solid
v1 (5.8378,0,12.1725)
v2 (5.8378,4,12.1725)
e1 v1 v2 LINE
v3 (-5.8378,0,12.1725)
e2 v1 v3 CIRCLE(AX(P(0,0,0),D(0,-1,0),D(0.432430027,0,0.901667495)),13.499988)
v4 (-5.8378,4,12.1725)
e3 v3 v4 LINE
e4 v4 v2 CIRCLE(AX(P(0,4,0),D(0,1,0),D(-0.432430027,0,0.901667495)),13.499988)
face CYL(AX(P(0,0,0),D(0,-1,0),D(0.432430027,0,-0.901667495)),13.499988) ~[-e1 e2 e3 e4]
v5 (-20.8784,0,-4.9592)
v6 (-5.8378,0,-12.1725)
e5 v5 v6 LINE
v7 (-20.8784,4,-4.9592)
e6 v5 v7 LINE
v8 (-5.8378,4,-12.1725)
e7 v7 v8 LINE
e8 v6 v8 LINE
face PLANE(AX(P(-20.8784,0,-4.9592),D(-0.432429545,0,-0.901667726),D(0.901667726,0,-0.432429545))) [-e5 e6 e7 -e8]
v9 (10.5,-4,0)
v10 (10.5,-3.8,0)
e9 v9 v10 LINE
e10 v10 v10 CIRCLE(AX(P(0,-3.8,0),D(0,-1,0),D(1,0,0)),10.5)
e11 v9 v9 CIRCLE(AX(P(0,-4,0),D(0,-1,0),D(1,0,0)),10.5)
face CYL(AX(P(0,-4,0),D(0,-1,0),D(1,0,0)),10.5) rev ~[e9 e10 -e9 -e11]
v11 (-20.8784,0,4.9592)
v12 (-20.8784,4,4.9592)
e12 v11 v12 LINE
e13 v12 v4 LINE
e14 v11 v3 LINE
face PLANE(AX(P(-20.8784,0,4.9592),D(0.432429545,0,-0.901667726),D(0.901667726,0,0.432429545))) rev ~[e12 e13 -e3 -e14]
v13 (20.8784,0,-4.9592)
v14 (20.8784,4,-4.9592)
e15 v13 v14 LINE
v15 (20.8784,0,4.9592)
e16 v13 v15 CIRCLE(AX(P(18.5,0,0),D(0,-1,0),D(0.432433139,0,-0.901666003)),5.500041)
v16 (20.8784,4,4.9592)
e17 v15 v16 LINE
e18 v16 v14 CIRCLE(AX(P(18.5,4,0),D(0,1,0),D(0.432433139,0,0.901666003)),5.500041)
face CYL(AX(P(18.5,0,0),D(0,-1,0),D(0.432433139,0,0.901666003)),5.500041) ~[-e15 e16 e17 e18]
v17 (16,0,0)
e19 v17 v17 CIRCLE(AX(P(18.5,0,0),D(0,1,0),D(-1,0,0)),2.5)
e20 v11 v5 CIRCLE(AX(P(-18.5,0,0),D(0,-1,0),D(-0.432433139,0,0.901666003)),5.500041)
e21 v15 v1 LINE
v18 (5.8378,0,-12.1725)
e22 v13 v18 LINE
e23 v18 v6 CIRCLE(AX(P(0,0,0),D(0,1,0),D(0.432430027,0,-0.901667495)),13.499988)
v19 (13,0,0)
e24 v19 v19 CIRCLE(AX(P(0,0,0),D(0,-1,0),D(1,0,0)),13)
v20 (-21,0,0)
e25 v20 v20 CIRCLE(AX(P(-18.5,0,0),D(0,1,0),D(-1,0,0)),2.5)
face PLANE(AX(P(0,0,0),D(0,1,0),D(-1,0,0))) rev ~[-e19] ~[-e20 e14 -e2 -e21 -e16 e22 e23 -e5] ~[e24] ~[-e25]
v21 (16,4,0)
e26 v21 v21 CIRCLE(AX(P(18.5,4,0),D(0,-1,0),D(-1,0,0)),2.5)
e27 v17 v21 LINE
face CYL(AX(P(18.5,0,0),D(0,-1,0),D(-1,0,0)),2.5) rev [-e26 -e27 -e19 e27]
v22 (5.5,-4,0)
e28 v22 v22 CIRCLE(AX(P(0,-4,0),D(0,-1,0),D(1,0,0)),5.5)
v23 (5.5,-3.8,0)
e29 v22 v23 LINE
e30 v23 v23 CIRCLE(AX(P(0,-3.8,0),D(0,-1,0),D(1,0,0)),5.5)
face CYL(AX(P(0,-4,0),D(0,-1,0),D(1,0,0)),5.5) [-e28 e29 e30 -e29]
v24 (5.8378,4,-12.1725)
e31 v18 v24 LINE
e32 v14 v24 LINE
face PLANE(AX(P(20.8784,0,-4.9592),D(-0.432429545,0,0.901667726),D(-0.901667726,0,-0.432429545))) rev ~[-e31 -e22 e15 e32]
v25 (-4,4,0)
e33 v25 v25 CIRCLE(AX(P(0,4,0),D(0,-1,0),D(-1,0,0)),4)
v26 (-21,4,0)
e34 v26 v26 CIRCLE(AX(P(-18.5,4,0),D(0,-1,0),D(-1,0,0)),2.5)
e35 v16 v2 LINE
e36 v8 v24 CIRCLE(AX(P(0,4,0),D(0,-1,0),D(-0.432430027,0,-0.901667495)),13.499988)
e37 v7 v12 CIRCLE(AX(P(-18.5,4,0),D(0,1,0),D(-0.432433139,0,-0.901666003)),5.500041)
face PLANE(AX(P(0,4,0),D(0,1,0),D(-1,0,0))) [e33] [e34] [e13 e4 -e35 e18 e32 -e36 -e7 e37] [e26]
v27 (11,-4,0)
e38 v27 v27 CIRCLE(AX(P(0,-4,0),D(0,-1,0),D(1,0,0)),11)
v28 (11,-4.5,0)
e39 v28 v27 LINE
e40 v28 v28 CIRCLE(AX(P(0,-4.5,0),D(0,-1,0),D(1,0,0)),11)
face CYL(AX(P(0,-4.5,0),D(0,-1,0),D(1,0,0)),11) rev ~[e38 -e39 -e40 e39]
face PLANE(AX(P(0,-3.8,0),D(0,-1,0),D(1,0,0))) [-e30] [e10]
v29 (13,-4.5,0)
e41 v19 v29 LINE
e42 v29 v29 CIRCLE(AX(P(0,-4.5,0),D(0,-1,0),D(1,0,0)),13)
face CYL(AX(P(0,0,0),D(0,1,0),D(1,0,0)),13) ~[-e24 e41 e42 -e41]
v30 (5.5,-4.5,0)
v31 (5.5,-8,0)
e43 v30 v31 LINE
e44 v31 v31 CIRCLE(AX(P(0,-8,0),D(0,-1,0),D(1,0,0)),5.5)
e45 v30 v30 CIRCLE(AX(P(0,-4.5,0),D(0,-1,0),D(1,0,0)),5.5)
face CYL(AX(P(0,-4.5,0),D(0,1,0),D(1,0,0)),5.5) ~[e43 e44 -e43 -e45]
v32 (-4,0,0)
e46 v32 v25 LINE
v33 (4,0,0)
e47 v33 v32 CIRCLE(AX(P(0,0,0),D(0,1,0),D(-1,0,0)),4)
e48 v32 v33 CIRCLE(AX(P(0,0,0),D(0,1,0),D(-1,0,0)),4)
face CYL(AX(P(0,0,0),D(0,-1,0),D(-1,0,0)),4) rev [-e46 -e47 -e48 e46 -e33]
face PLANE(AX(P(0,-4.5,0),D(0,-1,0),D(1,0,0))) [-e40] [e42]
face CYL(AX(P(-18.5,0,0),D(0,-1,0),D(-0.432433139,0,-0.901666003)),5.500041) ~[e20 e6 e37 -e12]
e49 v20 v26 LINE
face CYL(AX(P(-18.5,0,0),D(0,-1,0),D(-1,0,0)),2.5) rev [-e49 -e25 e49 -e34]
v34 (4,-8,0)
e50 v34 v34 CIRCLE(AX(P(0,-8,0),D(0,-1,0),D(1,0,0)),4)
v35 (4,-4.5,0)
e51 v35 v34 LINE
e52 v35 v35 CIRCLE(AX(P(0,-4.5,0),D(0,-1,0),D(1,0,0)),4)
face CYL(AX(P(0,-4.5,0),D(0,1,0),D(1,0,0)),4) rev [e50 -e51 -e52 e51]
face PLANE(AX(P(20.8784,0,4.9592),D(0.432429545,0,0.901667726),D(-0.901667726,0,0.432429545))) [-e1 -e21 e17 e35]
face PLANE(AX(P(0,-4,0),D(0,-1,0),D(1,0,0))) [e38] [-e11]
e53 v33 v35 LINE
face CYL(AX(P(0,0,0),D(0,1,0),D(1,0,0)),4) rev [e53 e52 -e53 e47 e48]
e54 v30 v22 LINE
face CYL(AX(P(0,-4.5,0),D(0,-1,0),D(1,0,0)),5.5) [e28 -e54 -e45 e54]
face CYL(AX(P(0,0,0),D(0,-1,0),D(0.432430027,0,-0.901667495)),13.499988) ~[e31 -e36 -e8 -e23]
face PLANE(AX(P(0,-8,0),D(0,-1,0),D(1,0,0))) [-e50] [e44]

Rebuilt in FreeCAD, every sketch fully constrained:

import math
import FreeCAD as App
import Part
import Sketcher

V = App.Vector

doc = App.newDocument("Part")
params = doc.addObject("Spreadsheet::Sheet", "Params")
for row, (alias, value) in enumerate([
    ("sketch1_diameter", "8 mm"),
    ("sketch1_diameter2", "5 mm"),
    ("sketch1_radius", "13.5 mm"),
    ("sketch1_radius2", "5.5 mm"),
    ("pad1_length", "4 mm"),
    ("sketch2_diameter", "26 mm"),
    ("sketch2_diameter2", "8 mm"),
    ("pad2_length", "4.5 mm"),
    ("sketch3_diameter", "11 mm"),
    ("sketch3_diameter2", "8 mm"),
    ("pad3_length", "3.5 mm"),
    ("sketch4_diameter", "22 mm"),
    ("sketch4_diameter2", "11 mm"),
    ("pocket1_length", "0.5 mm"),
    ("sketch5_diameter", "21 mm"),
    ("sketch5_diameter2", "11 mm"),
    ("pocket2_length", "0.2 mm"),
], start=1):
    params.set(f"A{row}", alias)
    params.set(f"B{row}", "=" + value)
    params.setAlias(f"B{row}", alias)

body = doc.addObject("PartDesign::Body", "Body")

# Sketch on XZ plane
sketch1 = doc.addObject("Sketcher::SketchObject", "Sketch")
body.addObject(sketch1)
sketch1.AttachmentSupport = (doc.XZ_Plane, [""])
sketch1.MapMode = "FlatFace"
sketch1.addGeometry(Part.LineSegment(V(-5.8378, -12.1725, 0), V(-20.8784, -4.9592, 0)), False)
sketch1.addGeometry(Part.ArcOfCircle(Part.Circle(V(-18.5, 0, 0), V(0, 0, 1), 5.500041), math.radians(115.622073), math.radians(244.377927)), False)
sketch1.addGeometry(Part.LineSegment(V(-20.8784, 4.9592, 0), V(-5.8378, 12.1725, 0)), False)
sketch1.addGeometry(Part.ArcOfCircle(Part.Circle(V(0, 0, 0), V(0, 0, 1), 13.499988), math.radians(64.378125), math.radians(115.621875)), False)
sketch1.addGeometry(Part.LineSegment(V(5.8378, 12.1725, 0), V(20.8784, 4.9592, 0)), False)
sketch1.addGeometry(Part.ArcOfCircle(Part.Circle(V(18.5, 0, 0), V(0, 0, 1), 5.500041), math.radians(-64.377927), math.radians(64.377927)), False)
sketch1.addGeometry(Part.LineSegment(V(20.8784, -4.9592, 0), V(5.8378, -12.1725, 0)), False)
sketch1.addGeometry(Part.ArcOfCircle(Part.Circle(V(0, 0, 0), V(0, 0, 1), 13.499988), math.radians(-115.621875), math.radians(-64.378125)), False)
sketch1.addGeometry(Part.Circle(V(0, 0, 0), V(0, 0, 1), 4), False)
sketch1.addGeometry(Part.Circle(V(-18.5, 0, 0), V(0, 0, 1), 2.5), False)
sketch1.addGeometry(Part.Circle(V(18.5, 0, 0), V(0, 0, 1), 2.5), False)
sketch1.addConstraint(Sketcher.Constraint("Tangent", 0, 2, 1, 2))
sketch1.addConstraint(Sketcher.Constraint("Tangent", 1, 1, 2, 1))
sketch1.addConstraint(Sketcher.Constraint("Tangent", 2, 2, 3, 2))
sketch1.addConstraint(Sketcher.Constraint("Tangent", 3, 1, 4, 1))
sketch1.addConstraint(Sketcher.Constraint("Tangent", 4, 2, 5, 2))
sketch1.addConstraint(Sketcher.Constraint("Tangent", 5, 1, 6, 1))
sketch1.addConstraint(Sketcher.Constraint("Tangent", 6, 2, 7, 2))
sketch1.addConstraint(Sketcher.Constraint("Tangent", 7, 1, 0, 1))
sketch1.addConstraint(Sketcher.Constraint("Coincident", 3, 3, -1, 1))
sketch1.addConstraint(Sketcher.Constraint("Coincident", 7, 3, -1, 1))
sketch1.addConstraint(Sketcher.Constraint("Coincident", 8, 3, -1, 1))
sketch1.addConstraint(Sketcher.Constraint("Coincident", 9, 3, 1, 3))
sketch1.addConstraint(Sketcher.Constraint("Coincident", 10, 3, 5, 3))
sketch1.addConstraint(Sketcher.Constraint("Equal", 1, 5))
sketch1.addConstraint(Sketcher.Constraint("Equal", 3, 7))
sketch1.addConstraint(Sketcher.Constraint("Equal", 9, 10))
sketch1.addConstraint(Sketcher.Constraint("Symmetric", 1, 3, 5, 3, -1, 1))
sketch1.addConstraint(Sketcher.Constraint("PointOnObject", 1, 3, -1))
sketch1.addConstraint(Sketcher.Constraint("Diameter", 8, 8.0))
sketch1.addConstraint(Sketcher.Constraint("Diameter", 9, 5.0))
sketch1.addConstraint(Sketcher.Constraint("Radius", 3, 13.5))
sketch1.addConstraint(Sketcher.Constraint("DistanceX", 1, 3, 5, 3, 37.0))
sketch1.addConstraint(Sketcher.Constraint("Radius", 1, 5.5))
sketch1.setExpression("Constraints[18]", "Params.sketch1_diameter")
sketch1.setExpression("Constraints[19]", "Params.sketch1_diameter2")
sketch1.setExpression("Constraints[20]", "Params.sketch1_radius")
sketch1.setExpression("Constraints[22]", "Params.sketch1_radius2")
pad1 = doc.addObject("PartDesign::Pad", "Pad")
body.addObject(pad1)
pad1.Profile = sketch1
pad1.setExpression("Length", "Params.pad1_length")
pad1.Reversed = True

# Sketch on XZ plane
sketch2 = doc.addObject("Sketcher::SketchObject", "Sketch001")
body.addObject(sketch2)
sketch2.AttachmentSupport = (doc.XZ_Plane, [""])
sketch2.MapMode = "FlatFace"
sketch2.addGeometry(Part.Circle(V(0, 0, 0), V(0, 0, 1), 13), False)
sketch2.addGeometry(Part.Circle(V(0, 0, 0), V(0, 0, 1), 4), False)
sketch2.addConstraint(Sketcher.Constraint("Coincident", 0, 3, -1, 1))
sketch2.addConstraint(Sketcher.Constraint("Coincident", 1, 3, -1, 1))
sketch2.addConstraint(Sketcher.Constraint("Diameter", 0, 26.0))
sketch2.addConstraint(Sketcher.Constraint("Diameter", 1, 8.0))
sketch2.setExpression("Constraints[2]", "Params.sketch2_diameter")
sketch2.setExpression("Constraints[3]", "Params.sketch2_diameter2")
pad2 = doc.addObject("PartDesign::Pad", "Pad001")
body.addObject(pad2)
pad2.Profile = sketch2
pad2.setExpression("Length", "Params.pad2_length")

# Sketch on XZ plane
sketch3 = doc.addObject("Sketcher::SketchObject", "Sketch002")
body.addObject(sketch3)
sketch3.AttachmentSupport = (doc.XZ_Plane, [""])
sketch3.MapMode = "FlatFace"
sketch3.AttachmentOffset = App.Placement(V(0, 0, 4.5), App.Rotation())
sketch3.addGeometry(Part.Circle(V(0, 0, 0), V(0, 0, 1), 5.5), False)
sketch3.addGeometry(Part.Circle(V(0, 0, 0), V(0, 0, 1), 4), False)
sketch3.addConstraint(Sketcher.Constraint("Coincident", 0, 3, -1, 1))
sketch3.addConstraint(Sketcher.Constraint("Coincident", 1, 3, -1, 1))
sketch3.addConstraint(Sketcher.Constraint("Diameter", 0, 11.0))
sketch3.addConstraint(Sketcher.Constraint("Diameter", 1, 8.0))
sketch3.setExpression("Constraints[2]", "Params.sketch3_diameter")
sketch3.setExpression("Constraints[3]", "Params.sketch3_diameter2")
pad3 = doc.addObject("PartDesign::Pad", "Pad002")
body.addObject(pad3)
pad3.Profile = sketch3
pad3.setExpression("Length", "Params.pad3_length")

# Sketch on XZ plane
sketch4 = doc.addObject("Sketcher::SketchObject", "Sketch003")
body.addObject(sketch4)
sketch4.AttachmentSupport = (doc.XZ_Plane, [""])
sketch4.MapMode = "FlatFace"
sketch4.AttachmentOffset = App.Placement(V(0, 0, 4.5), App.Rotation())
sketch4.addGeometry(Part.Circle(V(0, 0, 0), V(0, 0, 1), 11), False)
sketch4.addGeometry(Part.Circle(V(0, 0, 0), V(0, 0, 1), 5.5), False)
sketch4.addConstraint(Sketcher.Constraint("Coincident", 0, 3, -1, 1))
sketch4.addConstraint(Sketcher.Constraint("Coincident", 1, 3, -1, 1))
sketch4.addConstraint(Sketcher.Constraint("Diameter", 0, 22.0))
sketch4.addConstraint(Sketcher.Constraint("Diameter", 1, 11.0))
sketch4.setExpression("Constraints[2]", "Params.sketch4_diameter")
sketch4.setExpression("Constraints[3]", "Params.sketch4_diameter2")
pocket1 = doc.addObject("PartDesign::Pocket", "Pocket")
body.addObject(pocket1)
pocket1.Profile = sketch4
pocket1.setExpression("Length", "Params.pocket1_length")

# Sketch on XZ plane
sketch5 = doc.addObject("Sketcher::SketchObject", "Sketch004")
body.addObject(sketch5)
sketch5.AttachmentSupport = (doc.XZ_Plane, [""])
sketch5.MapMode = "FlatFace"
sketch5.AttachmentOffset = App.Placement(V(0, 0, 4), App.Rotation())
sketch5.addGeometry(Part.Circle(V(0, 0, 0), V(0, 0, 1), 10.5), False)
sketch5.addGeometry(Part.Circle(V(0, 0, 0), V(0, 0, 1), 5.5), False)
sketch5.addConstraint(Sketcher.Constraint("Coincident", 0, 3, -1, 1))
sketch5.addConstraint(Sketcher.Constraint("Coincident", 1, 3, -1, 1))
sketch5.addConstraint(Sketcher.Constraint("Diameter", 0, 21.0))
sketch5.addConstraint(Sketcher.Constraint("Diameter", 1, 11.0))
sketch5.setExpression("Constraints[2]", "Params.sketch5_diameter")
sketch5.setExpression("Constraints[3]", "Params.sketch5_diameter2")
pocket2 = doc.addObject("PartDesign::Pocket", "Pocket001")
body.addObject(pocket2)
pocket2.Profile = sketch5
pocket2.setExpression("Length", "Params.pocket2_length")

doc.recompute()
